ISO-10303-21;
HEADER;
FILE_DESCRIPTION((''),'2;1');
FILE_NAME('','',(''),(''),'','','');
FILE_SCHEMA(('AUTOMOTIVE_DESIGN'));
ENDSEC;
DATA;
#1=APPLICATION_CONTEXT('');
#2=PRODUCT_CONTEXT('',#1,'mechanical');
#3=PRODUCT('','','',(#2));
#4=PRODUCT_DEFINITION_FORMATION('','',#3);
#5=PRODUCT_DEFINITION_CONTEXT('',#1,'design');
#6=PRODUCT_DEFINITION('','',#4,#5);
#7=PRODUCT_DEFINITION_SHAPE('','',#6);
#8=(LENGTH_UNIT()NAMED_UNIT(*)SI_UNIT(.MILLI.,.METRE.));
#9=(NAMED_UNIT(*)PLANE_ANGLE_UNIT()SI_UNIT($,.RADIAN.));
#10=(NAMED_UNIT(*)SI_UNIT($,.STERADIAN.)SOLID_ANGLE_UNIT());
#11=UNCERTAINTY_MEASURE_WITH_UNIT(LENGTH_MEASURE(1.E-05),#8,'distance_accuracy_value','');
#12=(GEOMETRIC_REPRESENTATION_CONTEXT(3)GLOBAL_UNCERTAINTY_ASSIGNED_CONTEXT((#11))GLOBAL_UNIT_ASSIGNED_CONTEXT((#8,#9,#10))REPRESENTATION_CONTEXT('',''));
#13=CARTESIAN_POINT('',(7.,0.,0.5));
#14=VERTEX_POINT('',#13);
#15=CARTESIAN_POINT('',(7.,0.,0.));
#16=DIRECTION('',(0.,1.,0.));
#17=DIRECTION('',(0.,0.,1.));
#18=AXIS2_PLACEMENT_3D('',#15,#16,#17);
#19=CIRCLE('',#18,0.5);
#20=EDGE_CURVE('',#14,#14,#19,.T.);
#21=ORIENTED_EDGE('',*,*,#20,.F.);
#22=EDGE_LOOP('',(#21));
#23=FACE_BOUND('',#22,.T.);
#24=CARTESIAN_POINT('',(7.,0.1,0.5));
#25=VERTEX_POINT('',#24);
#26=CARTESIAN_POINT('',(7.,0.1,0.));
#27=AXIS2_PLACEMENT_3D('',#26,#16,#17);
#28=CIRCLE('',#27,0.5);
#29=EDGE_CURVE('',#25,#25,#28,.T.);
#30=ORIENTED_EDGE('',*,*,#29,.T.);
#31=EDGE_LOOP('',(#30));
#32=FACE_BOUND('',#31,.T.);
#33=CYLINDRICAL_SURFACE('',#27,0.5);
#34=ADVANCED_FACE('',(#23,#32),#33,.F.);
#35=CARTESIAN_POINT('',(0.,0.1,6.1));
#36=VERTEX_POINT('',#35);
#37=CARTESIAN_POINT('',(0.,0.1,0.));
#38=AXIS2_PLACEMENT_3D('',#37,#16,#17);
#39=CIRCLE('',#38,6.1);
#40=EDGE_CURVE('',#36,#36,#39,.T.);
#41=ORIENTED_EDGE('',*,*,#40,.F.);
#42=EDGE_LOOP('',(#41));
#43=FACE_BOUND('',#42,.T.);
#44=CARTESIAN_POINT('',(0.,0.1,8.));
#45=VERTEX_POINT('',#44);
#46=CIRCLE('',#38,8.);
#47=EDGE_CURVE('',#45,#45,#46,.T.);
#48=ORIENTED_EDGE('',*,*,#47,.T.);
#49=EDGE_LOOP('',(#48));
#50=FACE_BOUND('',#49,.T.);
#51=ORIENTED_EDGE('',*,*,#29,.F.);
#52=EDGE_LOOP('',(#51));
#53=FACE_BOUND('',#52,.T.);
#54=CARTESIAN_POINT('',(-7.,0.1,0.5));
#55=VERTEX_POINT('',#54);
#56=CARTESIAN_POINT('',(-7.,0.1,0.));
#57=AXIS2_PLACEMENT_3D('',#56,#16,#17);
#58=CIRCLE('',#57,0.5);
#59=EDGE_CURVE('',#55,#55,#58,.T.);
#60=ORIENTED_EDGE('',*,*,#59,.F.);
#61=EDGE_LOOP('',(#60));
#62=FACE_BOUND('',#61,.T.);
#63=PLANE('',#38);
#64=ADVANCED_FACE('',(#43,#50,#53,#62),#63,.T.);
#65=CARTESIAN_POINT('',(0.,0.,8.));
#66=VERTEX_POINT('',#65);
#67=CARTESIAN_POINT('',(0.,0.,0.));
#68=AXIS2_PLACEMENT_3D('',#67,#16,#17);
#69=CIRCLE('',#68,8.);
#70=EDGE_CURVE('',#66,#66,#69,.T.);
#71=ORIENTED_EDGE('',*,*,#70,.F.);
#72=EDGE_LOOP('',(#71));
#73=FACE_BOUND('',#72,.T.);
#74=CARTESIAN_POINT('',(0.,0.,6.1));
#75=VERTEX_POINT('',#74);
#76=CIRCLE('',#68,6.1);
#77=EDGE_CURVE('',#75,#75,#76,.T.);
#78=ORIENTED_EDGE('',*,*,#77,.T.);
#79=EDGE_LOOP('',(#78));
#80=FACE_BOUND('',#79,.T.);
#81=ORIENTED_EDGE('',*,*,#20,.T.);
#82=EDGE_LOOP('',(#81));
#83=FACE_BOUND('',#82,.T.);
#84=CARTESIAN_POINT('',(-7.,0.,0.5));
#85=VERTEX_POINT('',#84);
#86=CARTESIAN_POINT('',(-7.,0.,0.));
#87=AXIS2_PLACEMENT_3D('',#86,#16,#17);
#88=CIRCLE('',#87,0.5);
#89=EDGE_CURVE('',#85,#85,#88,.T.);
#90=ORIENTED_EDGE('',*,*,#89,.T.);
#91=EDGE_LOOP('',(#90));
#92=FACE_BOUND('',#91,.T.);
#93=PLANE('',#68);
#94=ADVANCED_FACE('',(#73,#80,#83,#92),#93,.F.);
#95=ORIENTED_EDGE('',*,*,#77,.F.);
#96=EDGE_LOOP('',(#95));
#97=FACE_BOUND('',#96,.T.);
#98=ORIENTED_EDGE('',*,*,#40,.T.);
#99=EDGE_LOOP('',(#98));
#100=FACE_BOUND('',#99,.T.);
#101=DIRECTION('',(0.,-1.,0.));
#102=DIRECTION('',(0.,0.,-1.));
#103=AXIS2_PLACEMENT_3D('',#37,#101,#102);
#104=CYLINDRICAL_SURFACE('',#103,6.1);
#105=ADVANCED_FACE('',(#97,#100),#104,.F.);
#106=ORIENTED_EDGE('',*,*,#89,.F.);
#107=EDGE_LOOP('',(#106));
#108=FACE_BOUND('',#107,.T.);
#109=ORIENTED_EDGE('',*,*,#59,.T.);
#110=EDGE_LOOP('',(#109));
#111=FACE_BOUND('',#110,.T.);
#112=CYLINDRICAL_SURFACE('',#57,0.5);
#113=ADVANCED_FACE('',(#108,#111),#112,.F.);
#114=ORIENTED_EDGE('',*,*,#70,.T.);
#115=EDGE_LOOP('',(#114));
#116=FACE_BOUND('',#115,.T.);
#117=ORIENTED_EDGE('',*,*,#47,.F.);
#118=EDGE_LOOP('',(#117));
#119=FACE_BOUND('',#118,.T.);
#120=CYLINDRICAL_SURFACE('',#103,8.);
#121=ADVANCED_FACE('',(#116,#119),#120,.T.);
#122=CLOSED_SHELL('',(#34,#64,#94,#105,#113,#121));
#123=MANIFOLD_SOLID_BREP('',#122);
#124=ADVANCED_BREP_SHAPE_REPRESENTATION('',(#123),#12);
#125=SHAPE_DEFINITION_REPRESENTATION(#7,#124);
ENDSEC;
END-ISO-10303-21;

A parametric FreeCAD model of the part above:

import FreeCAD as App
import Part
import Sketcher

doc = App.newDocument("Part")
body = doc.addObject("PartDesign::Body", "Body")

# Sketch on XZ plane
sketch1 = body.newObject("Sketcher::SketchObject", "Sketch")
sketch1.AttachmentSupport = (doc.getObject("XZ_Plane"), [""])
sketch1.MapMode = "FlatFace"
sketch1.addGeometry([
    Part.Circle(App.Vector(0, 0, 0), App.Vector(0, 0, 1), 8),
    Part.Circle(App.Vector(0, 0, 0), App.Vector(0, 0, 1), 6),
], False)
sketch1.addConstraint([
    Sketcher.Constraint("Coincident", 0, 3, -1, 1),
    Sketcher.Constraint("Coincident", 1, 3, -1, 1),
    Sketcher.Constraint("Diameter", 0, 16.0),
    Sketcher.Constraint("Diameter", 1, 12.2),
])
pad1 = body.newObject("PartDesign::Pad", "Pad")
pad1.Profile = sketch1
pad1.Length = 0.1
pad1.Reversed = True

# Sketch on XZ plane
sketch2 = body.newObject("Sketcher::SketchObject", "Sketch001")
sketch2.AttachmentSupport = (doc.getObject("XZ_Plane"), [""])
sketch2.MapMode = "FlatFace"
sketch2.AttachmentOffset = App.Placement(App.Vector(0, 0, -0.1), App.Rotation())
sketch2.addGeometry([
    Part.Circle(App.Vector(-7, 0, 0), App.Vector(0, 0, 1), 0.5),
    Part.Circle(App.Vector(7, 0, 0), App.Vector(0, 0, 1), 0.5),
], False)
sketch2.addConstraint([
    Sketcher.Constraint("Equal", 0, 1),
    Sketcher.Constraint("Symmetric", 0, 3, 1, 3, -1, 1),
    Sketcher.Constraint("PointOnObject", 0, 3, -1),
    Sketcher.Constraint("Diameter", 0, 1.0),
    Sketcher.Constraint("DistanceX", 0, 3, -1, 1, 7.0),
])
doc.recompute()
hole = body.newObject("PartDesign::Hole", "Hole")
hole.Profile = sketch2
hole.ThreadType = "None"
hole.Diameter = 1
hole.DepthType = "ThroughAll"
hole.Reversed = True

doc.recompute()
